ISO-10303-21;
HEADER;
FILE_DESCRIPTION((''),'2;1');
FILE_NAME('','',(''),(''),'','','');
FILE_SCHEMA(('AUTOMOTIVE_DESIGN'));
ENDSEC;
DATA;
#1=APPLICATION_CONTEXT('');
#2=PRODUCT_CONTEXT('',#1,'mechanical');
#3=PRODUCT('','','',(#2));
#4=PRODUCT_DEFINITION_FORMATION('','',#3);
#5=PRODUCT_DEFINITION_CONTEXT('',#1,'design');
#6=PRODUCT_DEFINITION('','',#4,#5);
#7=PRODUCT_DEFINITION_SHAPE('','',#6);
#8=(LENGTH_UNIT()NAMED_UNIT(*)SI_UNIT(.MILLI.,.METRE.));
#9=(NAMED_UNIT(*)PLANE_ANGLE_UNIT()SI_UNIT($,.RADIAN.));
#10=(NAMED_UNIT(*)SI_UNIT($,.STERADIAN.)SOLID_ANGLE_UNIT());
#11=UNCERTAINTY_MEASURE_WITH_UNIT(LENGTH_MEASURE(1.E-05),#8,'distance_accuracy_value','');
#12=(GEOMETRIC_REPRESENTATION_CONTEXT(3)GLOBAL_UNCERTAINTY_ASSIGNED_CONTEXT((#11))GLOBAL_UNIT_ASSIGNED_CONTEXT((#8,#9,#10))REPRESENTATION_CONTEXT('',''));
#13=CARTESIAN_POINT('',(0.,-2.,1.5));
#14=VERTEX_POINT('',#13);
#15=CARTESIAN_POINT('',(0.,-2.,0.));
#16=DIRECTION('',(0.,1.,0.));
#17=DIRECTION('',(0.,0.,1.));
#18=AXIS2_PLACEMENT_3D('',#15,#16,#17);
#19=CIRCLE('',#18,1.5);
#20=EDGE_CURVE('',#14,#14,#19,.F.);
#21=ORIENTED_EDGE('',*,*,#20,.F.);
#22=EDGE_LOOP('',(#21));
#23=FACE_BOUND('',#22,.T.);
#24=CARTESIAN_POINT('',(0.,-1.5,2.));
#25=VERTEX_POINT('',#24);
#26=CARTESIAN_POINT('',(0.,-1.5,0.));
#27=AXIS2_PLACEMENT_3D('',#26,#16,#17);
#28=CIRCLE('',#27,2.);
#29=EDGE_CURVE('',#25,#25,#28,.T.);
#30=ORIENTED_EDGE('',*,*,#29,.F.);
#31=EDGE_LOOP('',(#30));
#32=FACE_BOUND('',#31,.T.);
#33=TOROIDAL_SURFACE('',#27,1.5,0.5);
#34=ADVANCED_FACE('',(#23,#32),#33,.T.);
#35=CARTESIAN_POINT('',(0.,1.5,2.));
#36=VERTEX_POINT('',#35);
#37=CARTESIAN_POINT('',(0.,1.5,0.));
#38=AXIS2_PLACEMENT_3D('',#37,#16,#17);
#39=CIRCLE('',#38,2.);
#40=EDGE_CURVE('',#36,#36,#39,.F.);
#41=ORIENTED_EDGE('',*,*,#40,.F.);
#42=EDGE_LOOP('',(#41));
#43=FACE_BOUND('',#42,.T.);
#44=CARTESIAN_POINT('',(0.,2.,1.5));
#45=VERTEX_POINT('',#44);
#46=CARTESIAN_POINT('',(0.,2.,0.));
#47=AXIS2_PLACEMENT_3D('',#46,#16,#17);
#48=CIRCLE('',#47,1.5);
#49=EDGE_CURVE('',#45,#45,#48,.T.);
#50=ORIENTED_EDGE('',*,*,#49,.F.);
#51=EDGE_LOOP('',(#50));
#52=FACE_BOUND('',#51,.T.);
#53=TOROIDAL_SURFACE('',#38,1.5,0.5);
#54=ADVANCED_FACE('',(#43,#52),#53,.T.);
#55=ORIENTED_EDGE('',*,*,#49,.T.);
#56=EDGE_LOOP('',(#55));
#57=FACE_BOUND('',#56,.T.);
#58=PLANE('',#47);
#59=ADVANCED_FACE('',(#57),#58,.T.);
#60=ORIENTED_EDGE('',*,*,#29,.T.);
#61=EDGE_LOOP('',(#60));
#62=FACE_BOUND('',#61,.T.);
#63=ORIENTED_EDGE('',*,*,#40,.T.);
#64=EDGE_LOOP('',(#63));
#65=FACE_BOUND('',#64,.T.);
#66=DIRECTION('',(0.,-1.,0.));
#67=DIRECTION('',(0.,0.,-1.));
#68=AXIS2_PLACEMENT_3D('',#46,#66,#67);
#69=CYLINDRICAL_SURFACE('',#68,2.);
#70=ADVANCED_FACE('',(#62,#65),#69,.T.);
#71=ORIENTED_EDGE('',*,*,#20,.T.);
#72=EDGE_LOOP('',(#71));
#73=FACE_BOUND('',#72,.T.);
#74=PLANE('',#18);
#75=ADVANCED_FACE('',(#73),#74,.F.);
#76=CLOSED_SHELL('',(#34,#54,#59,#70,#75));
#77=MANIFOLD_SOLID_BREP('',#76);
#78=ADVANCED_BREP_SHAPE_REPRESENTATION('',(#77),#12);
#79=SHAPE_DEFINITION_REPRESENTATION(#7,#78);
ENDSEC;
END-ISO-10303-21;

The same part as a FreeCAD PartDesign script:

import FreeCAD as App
import Part
import Sketcher
Q = App.Units.Quantity


def edges_at(feature, points):
    """Names of the edges that pass closest to the given points."""
    edges = feature.Shape.Edges
    near = lambda p: min(range(len(edges)), key=lambda i: edges[i].distToShape(Part.Vertex(*p))[0])
    return sorted({f"Edge{near(p) + 1}" for p in points})

doc = App.newDocument("Part")
body = doc.addObject("PartDesign::Body", "Body")

# Sketch on XZ plane
sketch1 = body.newObject("Sketcher::SketchObject", "Sketch")
sketch1.AttachmentSupport = (doc.getObject("XZ_Plane"), [""])
sketch1.MapMode = "FlatFace"
sketch1.addGeometry(Part.Circle(App.Vector(0, 0, 0), App.Vector(0, 0, 1), 2), False)
sketch1.addConstraint([
    Sketcher.Constraint("Coincident", 0, 3, -1, 1),
    Sketcher.Constraint("Diameter", 0, Q("4 mm")),
])
pad1 = body.newObject("PartDesign::Pad", "Pad")
pad1.Profile = sketch1
pad1.Length = 4
pad1.Midplane = True
doc.recompute()

fillet = body.newObject("PartDesign::Fillet", "Fillet")
fillet.Base = (pad1, edges_at(pad1, [(0, -2, -2), (0, 2, -2)]))
fillet.Radius = 0.5

doc.recompute()
